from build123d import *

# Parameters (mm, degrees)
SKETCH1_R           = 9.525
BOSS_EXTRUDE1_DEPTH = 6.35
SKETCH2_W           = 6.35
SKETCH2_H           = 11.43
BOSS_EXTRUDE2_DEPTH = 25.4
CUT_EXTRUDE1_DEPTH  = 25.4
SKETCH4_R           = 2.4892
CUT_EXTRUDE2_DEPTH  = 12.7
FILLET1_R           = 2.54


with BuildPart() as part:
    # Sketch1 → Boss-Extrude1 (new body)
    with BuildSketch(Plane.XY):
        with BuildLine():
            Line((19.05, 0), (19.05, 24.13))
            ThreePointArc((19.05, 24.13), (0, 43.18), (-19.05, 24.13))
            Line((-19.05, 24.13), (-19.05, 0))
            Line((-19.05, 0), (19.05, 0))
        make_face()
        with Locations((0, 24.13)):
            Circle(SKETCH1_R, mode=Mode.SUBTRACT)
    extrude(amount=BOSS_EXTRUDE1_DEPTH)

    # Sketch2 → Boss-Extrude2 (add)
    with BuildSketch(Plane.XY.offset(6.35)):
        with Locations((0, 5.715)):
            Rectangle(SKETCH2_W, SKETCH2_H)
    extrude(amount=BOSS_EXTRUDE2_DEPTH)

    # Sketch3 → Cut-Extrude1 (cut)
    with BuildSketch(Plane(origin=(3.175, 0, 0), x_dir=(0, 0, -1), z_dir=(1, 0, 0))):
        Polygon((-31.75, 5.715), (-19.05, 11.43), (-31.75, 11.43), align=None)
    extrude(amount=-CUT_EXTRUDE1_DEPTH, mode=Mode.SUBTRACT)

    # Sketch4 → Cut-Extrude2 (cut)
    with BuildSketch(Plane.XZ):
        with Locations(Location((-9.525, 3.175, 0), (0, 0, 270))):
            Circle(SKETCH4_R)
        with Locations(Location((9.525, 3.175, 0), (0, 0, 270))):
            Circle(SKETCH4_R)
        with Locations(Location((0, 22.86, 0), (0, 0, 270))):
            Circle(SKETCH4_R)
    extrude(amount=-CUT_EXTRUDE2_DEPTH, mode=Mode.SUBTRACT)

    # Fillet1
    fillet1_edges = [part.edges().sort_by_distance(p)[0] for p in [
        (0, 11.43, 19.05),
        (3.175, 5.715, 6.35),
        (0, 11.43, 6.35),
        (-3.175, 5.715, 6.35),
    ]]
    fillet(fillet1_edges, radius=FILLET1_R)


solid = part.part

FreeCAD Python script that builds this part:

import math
import FreeCAD as App
import Part
import Sketcher
Q = App.Units.Quantity


def edges_at(feature, points):
    """Names of the edges that pass closest to the given points."""
    edges = feature.Shape.Edges
    near = lambda p: min(range(len(edges)), key=lambda i: edges[i].distToShape(Part.Vertex(*p))[0])
    return sorted({f"Edge{near(p) + 1}" for p in points})

doc = App.newDocument("Part")
body = doc.addObject("PartDesign::Body", "Body")

# Sketch on XY plane
sketch1 = doc.addObject("Sketcher::SketchObject", "Sketch")
body.addObject(sketch1)
sketch1.AttachmentSupport = (doc.XY_Plane, [""])
sketch1.MapMode = "FlatFace"
sketch1.addGeometry(Part.LineSegment(App.Vector(19, 0, 0), App.Vector(19, 24, 0)), False)
sketch1.addGeometry(Part.ArcOfCircle(Part.Circle(App.Vector(0, 24, 0), App.Vector(0, 0, 1), 19), math.radians(0), math.radians(180)), False)
sketch1.addGeometry(Part.LineSegment(App.Vector(-19, 24, 0), App.Vector(-19, 0, 0)), False)
sketch1.addGeometry(Part.LineSegment(App.Vector(-19, 0, 0), App.Vector(19, 0, 0)), False)
sketch1.addGeometry(Part.Circle(App.Vector(0, 24, 0), App.Vector(0, 0, 1), 10), False)
sketch1.addConstraint(Sketcher.Constraint("Tangent", 0, 2, 1, 1))
sketch1.addConstraint(Sketcher.Constraint("Tangent", 1, 2, 2, 1))
sketch1.addConstraint(Sketcher.Constraint("Coincident", 2, 2, 3, 1))
sketch1.addConstraint(Sketcher.Constraint("Coincident", 3, 2, 0, 1))
sketch1.addConstraint(Sketcher.Constraint("Vertical", 0))
sketch1.addConstraint(Sketcher.Constraint("Vertical", 2))
sketch1.addConstraint(Sketcher.Constraint("Horizontal", 3))
sketch1.addConstraint(Sketcher.Constraint("Coincident", 4, 3, 1, 3))
sketch1.addConstraint(Sketcher.Constraint("Symmetric", 2, 2, 3, 2, -1, 1))
sketch1.addConstraint(Sketcher.Constraint("Diameter", 4, Q("0.75 in")))
sketch1.addConstraint(Sketcher.Constraint("Radius", 1, Q("0.75 in")))
sketch1.addConstraint(Sketcher.Constraint("DistanceY", 0, 1, 0, 2, Q("0.95 in")))
pad1 = doc.addObject("PartDesign::Pad", "Pad")
body.addObject(pad1)
pad1.Profile = sketch1
pad1.Length = Q("0.25 in")

# Sketch on XY plane
sketch2 = doc.addObject("Sketcher::SketchObject", "Sketch001")
body.addObject(sketch2)
sketch2.AttachmentSupport = (doc.XY_Plane, [""])
sketch2.MapMode = "FlatFace"
sketch2.AttachmentOffset = App.Placement(App.Vector(0, 0, 0.25 * 25.4), App.Rotation())
sketch2.addGeometry(Part.LineSegment(App.Vector(-3, 11, 0), App.Vector(-3, 0, 0)), False)
sketch2.addGeometry(Part.LineSegment(App.Vector(-3, 0, 0), App.Vector(3, 0, 0)), False)
sketch2.addGeometry(Part.LineSegment(App.Vector(3, 0, 0), App.Vector(3, 11, 0)), False)
sketch2.addGeometry(Part.LineSegment(App.Vector(3, 11, 0), App.Vector(-3, 11, 0)), False)
sketch2.addConstraint(Sketcher.Constraint("Coincident", 0, 2, 1, 1))
sketch2.addConstraint(Sketcher.Constraint("Coincident", 1, 2, 2, 1))
sketch2.addConstraint(Sketcher.Constraint("Coincident", 2, 2, 3, 1))
sketch2.addConstraint(Sketcher.Constraint("Coincident", 3, 2, 0, 1))
sketch2.addConstraint(Sketcher.Constraint("Vertical", 0))
sketch2.addConstraint(Sketcher.Constraint("Horizontal", 1))
sketch2.addConstraint(Sketcher.Constraint("Vertical", 2))
sketch2.addConstraint(Sketcher.Constraint("Horizontal", 3))
sketch2.addConstraint(Sketcher.Constraint("Symmetric", 0, 2, 1, 2, -1, 1))
sketch2.addConstraint(Sketcher.Constraint("DistanceX", 1, 1, 1, 2, Q("0.25 in")))
sketch2.addConstraint(Sketcher.Constraint("DistanceY", 0, 2, 0, 1, Q("0.45 in")))
pad2 = doc.addObject("PartDesign::Pad", "Pad001")
body.addObject(pad2)
pad2.Profile = sketch2
pad2.Length = Q("1 in")

# Sketch on YZ plane
sketch3 = doc.addObject("Sketcher::SketchObject", "Sketch002")
body.addObject(sketch3)
sketch3.AttachmentSupport = (doc.YZ_Plane, [""])
sketch3.MapMode = "FlatFace"
sketch3.AttachmentOffset = App.Placement(App.Vector(0, 0, 0.125 * 25.4), App.Rotation())
sketch3.addGeometry(Part.LineSegment(App.Vector(6, 32, 0), App.Vector(11, 19, 0)), False)
sketch3.addGeometry(Part.LineSegment(App.Vector(11, 19, 0), App.Vector(11, 32, 0)), False)
sketch3.addGeometry(Part.LineSegment(App.Vector(11, 32, 0), App.Vector(6, 32, 0)), False)
sketch3.addConstraint(Sketcher.Constraint("Coincident", 0, 2, 1, 1))
sketch3.addConstraint(Sketcher.Constraint("Coincident", 1, 2, 2, 1))
sketch3.addConstraint(Sketcher.Constraint("Coincident", 2, 2, 0, 1))
sketch3.addConstraint(Sketcher.Constraint("Vertical", 1))
sketch3.addConstraint(Sketcher.Constraint("Horizontal", 2))
sketch3.addConstraint(Sketcher.Constraint("DistanceY", 1, 1, 1, 2, Q("0.5 in")))
sketch3.addConstraint(Sketcher.Constraint("DistanceX", 2, 2, 2, 1, Q("0.225 in")))
sketch3.addConstraint(Sketcher.Constraint("DistanceX", -1, 1, 0, 2, Q("0.45 in")))
sketch3.addConstraint(Sketcher.Constraint("DistanceY", -1, 1, 0, 2, Q("0.75 in")))
pocket1 = doc.addObject("PartDesign::Pocket", "Pocket")
body.addObject(pocket1)
pocket1.Profile = sketch3
pocket1.Length = Q("1 in")

# Sketch on XZ plane
sketch4 = doc.addObject("Sketcher::SketchObject", "Sketch003")
body.addObject(sketch4)
sketch4.AttachmentSupport = (doc.XZ_Plane, [""])
sketch4.MapMode = "FlatFace"
sketch4.addGeometry(Part.Circle(App.Vector(-9.5, 3.2, 0), App.Vector(0, 0, 1), 2.5), False)
sketch4.addGeometry(Part.Circle(App.Vector(9.5, 3.2, 0), App.Vector(0, 0, 1), 2.5), False)
sketch4.addGeometry(Part.Circle(App.Vector(0, 22.9, 0), App.Vector(0, 0, 1), 2.5), False)
sketch4.addConstraint(Sketcher.Constraint("Equal", 0, 1))
sketch4.addConstraint(Sketcher.Constraint("Equal", 1, 2))
sketch4.addConstraint(Sketcher.Constraint("Symmetric", 0, 3, 1, 3, -2))
sketch4.addConstraint(Sketcher.Constraint("PointOnObject", 2, 3, -2))
sketch4.addConstraint(Sketcher.Constraint("Diameter", 0, Q("0.196 in")))
sketch4.addConstraint(Sketcher.Constraint("DistanceY", -1, 1, 2, 3, Q("0.9 in")))
sketch4.addConstraint(Sketcher.Constraint("DistanceX", 0, 3, 1, 3, Q("0.75 in")))
sketch4.addConstraint(Sketcher.Constraint("DistanceY", -1, 1, 0, 3, Q("0.125 in")))
pocket2 = doc.addObject("PartDesign::Pocket", "Pocket001")
body.addObject(pocket2)
pocket2.Profile = sketch4
pocket2.Length = Q("0.5 in")
doc.recompute()

fillet = doc.addObject("PartDesign::Fillet", "Fillet")
body.addObject(fillet)
fillet.Base = (pocket2, edges_at(pocket2, [
    (0, 11.43, 19.05),
    (3.175, 5.715, 6.35),
    (0, 11.43, 6.35),
    (-3.175, 5.715, 6.35),
]))
fillet.Radius = Q("0.1 in")

doc.recompute()
